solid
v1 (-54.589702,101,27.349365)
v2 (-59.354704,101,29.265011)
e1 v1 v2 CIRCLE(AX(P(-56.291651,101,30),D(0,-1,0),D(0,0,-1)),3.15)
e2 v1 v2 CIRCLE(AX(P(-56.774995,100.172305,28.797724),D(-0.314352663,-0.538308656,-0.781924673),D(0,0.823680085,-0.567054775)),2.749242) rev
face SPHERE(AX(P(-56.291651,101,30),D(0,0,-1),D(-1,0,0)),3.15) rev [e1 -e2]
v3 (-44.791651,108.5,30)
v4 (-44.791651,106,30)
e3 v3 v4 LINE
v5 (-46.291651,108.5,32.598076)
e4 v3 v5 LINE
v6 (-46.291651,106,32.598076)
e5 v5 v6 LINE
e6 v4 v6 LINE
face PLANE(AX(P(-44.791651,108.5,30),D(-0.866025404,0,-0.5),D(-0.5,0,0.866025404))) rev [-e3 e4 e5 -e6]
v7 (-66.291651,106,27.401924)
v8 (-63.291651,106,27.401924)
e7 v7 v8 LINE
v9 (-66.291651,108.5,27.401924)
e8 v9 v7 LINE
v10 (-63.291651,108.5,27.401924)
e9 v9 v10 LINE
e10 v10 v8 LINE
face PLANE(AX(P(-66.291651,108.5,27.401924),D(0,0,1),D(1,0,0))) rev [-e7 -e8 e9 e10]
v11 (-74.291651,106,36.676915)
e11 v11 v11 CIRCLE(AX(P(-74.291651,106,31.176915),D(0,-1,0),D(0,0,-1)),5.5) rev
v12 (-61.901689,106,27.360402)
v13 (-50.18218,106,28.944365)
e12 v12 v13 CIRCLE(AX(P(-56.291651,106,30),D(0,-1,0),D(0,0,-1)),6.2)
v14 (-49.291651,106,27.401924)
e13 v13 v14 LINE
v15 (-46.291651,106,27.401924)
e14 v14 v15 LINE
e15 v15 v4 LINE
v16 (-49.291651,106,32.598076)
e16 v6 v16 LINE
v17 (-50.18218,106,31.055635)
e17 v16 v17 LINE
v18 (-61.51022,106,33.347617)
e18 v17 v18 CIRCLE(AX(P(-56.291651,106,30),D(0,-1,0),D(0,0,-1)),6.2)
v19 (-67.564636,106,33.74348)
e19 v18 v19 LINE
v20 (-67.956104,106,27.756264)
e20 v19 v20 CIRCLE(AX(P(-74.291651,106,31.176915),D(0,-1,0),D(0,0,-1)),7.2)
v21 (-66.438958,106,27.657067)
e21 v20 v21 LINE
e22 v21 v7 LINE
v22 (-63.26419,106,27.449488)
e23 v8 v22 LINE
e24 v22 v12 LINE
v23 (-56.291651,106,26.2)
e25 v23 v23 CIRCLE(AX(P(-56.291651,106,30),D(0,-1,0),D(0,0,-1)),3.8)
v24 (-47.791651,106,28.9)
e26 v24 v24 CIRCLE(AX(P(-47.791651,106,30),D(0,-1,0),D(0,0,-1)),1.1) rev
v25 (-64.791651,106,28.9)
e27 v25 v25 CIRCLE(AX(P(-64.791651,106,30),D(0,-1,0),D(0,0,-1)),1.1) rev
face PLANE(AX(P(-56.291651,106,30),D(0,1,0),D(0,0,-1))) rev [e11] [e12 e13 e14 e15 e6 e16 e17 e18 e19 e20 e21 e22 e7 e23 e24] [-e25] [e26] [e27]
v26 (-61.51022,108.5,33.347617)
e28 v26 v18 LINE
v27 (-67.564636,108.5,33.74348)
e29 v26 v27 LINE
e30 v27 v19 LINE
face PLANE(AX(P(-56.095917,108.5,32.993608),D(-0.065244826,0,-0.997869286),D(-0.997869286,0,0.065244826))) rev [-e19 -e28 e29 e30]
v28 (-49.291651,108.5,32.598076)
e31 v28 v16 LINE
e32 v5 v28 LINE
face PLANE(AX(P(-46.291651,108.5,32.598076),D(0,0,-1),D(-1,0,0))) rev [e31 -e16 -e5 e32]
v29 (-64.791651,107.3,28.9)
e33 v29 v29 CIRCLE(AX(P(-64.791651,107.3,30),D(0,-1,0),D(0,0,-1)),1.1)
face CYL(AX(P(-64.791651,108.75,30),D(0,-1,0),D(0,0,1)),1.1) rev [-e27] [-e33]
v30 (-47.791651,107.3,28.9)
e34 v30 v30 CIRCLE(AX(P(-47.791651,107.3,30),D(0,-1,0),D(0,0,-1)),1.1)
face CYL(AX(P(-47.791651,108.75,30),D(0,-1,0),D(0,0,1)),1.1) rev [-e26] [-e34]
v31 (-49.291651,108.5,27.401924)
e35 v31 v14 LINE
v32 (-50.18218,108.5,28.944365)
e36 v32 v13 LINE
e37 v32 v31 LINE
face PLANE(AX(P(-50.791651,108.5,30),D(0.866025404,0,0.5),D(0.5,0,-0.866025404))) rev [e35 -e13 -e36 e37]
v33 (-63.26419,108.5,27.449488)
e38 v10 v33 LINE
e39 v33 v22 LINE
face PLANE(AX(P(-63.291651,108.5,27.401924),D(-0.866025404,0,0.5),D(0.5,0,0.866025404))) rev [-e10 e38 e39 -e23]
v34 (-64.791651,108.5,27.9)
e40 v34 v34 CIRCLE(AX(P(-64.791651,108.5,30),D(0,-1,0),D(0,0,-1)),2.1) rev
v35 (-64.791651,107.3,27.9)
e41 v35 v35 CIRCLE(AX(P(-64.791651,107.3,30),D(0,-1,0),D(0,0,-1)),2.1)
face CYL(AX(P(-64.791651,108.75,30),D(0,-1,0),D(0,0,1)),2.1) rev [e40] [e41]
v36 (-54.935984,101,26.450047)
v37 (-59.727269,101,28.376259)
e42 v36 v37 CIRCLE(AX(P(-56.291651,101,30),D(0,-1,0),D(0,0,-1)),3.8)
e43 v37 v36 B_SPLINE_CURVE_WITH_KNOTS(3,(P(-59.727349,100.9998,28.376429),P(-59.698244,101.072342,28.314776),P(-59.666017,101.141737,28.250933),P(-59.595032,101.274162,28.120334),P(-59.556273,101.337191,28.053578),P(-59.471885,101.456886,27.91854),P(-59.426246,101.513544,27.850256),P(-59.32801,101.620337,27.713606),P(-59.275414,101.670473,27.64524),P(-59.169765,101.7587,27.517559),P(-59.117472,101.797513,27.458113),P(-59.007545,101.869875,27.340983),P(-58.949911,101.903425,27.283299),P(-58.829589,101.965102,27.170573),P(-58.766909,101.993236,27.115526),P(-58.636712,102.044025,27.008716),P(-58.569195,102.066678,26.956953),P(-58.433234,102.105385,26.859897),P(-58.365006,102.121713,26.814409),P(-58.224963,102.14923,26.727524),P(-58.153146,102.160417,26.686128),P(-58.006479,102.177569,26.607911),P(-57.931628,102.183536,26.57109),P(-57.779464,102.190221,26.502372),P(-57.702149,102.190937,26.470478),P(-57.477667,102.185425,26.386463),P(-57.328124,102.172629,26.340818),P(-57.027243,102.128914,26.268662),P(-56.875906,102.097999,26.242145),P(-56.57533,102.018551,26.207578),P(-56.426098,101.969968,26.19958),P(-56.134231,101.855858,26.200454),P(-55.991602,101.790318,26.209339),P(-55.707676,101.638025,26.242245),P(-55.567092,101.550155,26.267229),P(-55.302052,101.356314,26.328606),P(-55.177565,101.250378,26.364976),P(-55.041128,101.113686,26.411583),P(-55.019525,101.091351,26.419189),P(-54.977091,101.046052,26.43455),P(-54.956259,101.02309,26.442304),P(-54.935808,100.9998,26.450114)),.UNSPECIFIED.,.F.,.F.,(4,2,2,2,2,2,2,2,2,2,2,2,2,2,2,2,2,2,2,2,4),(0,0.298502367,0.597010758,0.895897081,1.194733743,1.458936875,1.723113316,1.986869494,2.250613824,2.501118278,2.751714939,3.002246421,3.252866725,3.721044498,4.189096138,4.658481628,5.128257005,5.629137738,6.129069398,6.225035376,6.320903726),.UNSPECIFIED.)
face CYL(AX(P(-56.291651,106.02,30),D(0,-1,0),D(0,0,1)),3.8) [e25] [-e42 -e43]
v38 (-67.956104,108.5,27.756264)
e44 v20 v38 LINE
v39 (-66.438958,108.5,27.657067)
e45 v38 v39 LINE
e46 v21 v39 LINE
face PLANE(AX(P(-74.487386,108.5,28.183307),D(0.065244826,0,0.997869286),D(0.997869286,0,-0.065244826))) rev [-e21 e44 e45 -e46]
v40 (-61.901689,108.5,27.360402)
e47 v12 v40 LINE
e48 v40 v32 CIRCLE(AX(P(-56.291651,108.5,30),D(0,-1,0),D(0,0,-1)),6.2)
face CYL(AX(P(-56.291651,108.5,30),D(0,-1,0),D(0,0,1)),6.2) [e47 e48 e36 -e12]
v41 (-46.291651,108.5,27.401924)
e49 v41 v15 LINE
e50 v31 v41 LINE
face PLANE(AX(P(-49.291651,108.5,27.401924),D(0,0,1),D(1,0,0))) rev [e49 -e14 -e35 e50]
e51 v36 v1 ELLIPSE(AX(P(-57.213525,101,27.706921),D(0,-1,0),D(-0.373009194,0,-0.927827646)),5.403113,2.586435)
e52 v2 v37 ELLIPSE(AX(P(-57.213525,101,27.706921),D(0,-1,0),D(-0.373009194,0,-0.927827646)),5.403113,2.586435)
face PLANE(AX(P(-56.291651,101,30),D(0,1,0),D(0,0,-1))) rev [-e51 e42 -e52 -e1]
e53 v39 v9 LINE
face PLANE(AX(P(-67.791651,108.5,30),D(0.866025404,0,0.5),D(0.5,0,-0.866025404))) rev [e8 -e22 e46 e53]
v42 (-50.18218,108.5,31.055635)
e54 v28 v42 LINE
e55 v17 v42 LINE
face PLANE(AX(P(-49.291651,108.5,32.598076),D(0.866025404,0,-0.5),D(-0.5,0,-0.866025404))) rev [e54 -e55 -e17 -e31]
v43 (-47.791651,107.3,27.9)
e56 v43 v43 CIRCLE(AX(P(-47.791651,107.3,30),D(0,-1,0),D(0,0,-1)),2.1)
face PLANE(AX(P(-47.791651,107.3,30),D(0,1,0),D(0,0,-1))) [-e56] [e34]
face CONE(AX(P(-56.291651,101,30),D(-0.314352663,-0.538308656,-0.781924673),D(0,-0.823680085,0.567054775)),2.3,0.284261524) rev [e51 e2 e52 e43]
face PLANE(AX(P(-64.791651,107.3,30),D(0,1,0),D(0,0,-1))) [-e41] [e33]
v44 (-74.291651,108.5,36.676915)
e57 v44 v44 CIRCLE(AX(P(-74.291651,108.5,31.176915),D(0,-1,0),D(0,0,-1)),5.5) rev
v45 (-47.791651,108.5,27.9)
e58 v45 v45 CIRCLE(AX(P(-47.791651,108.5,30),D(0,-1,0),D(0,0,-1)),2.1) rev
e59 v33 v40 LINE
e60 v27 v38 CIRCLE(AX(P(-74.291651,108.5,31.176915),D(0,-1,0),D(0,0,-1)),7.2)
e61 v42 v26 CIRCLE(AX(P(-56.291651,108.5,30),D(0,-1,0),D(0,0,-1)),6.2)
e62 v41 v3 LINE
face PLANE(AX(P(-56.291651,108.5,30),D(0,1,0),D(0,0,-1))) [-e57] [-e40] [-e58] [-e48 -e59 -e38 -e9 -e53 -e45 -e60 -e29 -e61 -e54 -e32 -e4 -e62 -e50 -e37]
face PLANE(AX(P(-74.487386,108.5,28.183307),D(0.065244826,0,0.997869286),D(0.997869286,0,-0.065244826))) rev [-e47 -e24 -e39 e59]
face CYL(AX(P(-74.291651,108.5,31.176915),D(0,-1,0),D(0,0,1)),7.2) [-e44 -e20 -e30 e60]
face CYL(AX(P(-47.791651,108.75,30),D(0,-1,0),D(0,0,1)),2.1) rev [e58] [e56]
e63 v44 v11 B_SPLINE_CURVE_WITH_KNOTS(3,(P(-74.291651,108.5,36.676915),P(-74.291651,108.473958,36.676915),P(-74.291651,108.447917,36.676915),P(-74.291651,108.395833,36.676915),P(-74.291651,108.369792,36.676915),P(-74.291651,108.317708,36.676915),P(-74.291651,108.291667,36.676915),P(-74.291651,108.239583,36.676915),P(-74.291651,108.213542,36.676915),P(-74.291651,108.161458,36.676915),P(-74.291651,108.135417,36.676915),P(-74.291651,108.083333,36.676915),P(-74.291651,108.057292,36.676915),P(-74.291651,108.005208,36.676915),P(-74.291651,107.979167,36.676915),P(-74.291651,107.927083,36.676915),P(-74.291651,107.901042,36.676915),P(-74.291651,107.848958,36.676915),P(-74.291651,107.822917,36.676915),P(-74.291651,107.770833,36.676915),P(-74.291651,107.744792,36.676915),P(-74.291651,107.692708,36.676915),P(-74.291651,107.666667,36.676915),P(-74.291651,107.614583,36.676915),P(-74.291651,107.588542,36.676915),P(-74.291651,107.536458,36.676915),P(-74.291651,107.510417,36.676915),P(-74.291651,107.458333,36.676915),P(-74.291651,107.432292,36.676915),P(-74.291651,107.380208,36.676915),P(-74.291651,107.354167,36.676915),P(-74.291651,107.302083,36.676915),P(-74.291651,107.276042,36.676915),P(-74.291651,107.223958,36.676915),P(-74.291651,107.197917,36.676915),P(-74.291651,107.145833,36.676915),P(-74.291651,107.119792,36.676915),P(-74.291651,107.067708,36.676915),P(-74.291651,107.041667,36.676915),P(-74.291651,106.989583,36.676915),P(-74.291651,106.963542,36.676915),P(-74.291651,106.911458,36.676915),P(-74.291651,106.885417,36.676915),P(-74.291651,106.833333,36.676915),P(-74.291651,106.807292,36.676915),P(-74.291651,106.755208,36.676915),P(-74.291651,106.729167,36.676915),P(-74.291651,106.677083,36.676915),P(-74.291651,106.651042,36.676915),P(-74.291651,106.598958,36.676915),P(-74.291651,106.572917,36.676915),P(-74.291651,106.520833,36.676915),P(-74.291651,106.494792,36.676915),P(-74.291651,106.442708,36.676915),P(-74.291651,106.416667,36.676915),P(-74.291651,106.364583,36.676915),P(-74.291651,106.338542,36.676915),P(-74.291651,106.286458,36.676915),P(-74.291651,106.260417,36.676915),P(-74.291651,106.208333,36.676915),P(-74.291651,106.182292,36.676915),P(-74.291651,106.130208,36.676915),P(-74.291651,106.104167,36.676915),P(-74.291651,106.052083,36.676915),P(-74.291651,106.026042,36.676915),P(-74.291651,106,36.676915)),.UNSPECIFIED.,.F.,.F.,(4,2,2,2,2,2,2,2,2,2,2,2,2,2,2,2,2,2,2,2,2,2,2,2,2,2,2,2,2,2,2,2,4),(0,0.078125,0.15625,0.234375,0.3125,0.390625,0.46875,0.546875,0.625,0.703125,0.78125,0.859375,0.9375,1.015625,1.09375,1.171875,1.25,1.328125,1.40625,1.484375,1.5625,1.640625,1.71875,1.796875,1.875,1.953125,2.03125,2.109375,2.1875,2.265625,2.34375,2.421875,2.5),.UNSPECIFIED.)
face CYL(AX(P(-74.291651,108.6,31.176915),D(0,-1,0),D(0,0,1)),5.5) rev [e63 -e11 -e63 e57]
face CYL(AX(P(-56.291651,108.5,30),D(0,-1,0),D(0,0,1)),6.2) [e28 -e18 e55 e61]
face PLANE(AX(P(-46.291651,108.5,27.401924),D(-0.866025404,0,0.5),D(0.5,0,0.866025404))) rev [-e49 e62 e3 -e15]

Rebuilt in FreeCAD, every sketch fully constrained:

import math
import FreeCAD as App
import Part
import Sketcher
from FreeCAD import Vector
Q = App.Units.Quantity


def add_polygon(sketch, points):
    """Adds a closed chain of lines whose ends are joined by coincident constraints."""
    first, n = sketch.GeometryCount, len(points)
    for a, b in zip(points, points[1:] + points[:1]):
        sketch.addGeometry(Part.LineSegment(App.Vector(*a, 0), App.Vector(*b, 0)), False)
    for i in range(n):
        sketch.addConstraint(Sketcher.Constraint("Coincident", first + i, 2, first + (i + 1) % n, 1))

doc = App.newDocument("Part")
body = doc.addObject("PartDesign::Body", "Body")

sketch1 = body.newObject("Sketcher::SketchObject", "Sketch")
sketch1.AttachmentSupport = (doc.getObject("XZ_Plane"), [""])
sketch1.MapMode = "FlatFace"
sketch1.AttachmentOffset = App.Placement(Vector(0, 0, 101), App.Rotation())
sketch1.addGeometry(Part.Circle(Vector(-56.3, 30, 0), Vector(0, 0, 1), 3.8), False)
sketch1.addConstraint([
    Sketcher.Constraint("Diameter", 0, Q("7.6 mm")),
    Sketcher.Constraint("DistanceY", -1, 1, 0, 3, Q("30 mm")),
    Sketcher.Constraint("DistanceX", 0, 3, -1, 1, Q("56.291651 mm")),
])
pad1 = body.newObject("PartDesign::Pad", "Pad")
pad1.Profile = sketch1
pad1.Length = 5.02

sketch2 = body.newObject("Sketcher::SketchObject", "Sketch001")
sketch2.AttachmentSupport = (doc.getObject("XZ_Plane"), [""])
sketch2.MapMode = "FlatFace"
sketch2.AttachmentOffset = App.Placement(Vector(0, 0, 106), App.Rotation())
sketch2.addGeometry(Part.Circle(Vector(-56, 30, 0), Vector(0, 0, 1), 6), False)
sketch2.addConstraint([
    Sketcher.Constraint("Diameter", 0, Q("12.4 mm")),
    Sketcher.Constraint("DistanceY", -1, 1, 0, 3, Q("30 mm")),
    Sketcher.Constraint("DistanceX", 0, 3, -1, 1, Q("56.291651 mm")),
])
pad2 = body.newObject("PartDesign::Pad", "Pad001")
pad2.Profile = sketch2
pad2.Length = 2.5

sketch3 = body.newObject("Sketcher::SketchObject", "Sketch002")
sketch3.AttachmentSupport = (doc.getObject("XZ_Plane"), [""])
sketch3.MapMode = "FlatFace"
sketch3.AttachmentOffset = App.Placement(Vector(0, 0, 106), App.Rotation())
add_polygon(sketch3, [(-44.8, 30), (-46.3, 32.6), (-49.3, 32.6), (-50.8, 30), (-49.3, 27.4), (-46.3, 27.4)])
sketch3.addConstraint([
    Sketcher.Constraint("Horizontal", 1),
    Sketcher.Constraint("Horizontal", 4),
    Sketcher.Constraint("Parallel", 0, 3),
    Sketcher.Constraint("Parallel", 2, 5),
    Sketcher.Constraint("Horizontal", 2, 2, 5, 2),
    Sketcher.Constraint("Vertical", 1, 2, 3, 2),
    Sketcher.Constraint("Vertical", 0, 2, 4, 2),
    Sketcher.Constraint("DistanceX", 1, 2, 1, 1, Q("3 mm")),
    Sketcher.Constraint("Angle", 0, Q("120 deg")),
    Sketcher.Constraint("Distance", 0, Q("3 mm")),
    Sketcher.Constraint("DistanceY", -1, 1, 2, 2, Q("30 mm")),
    Sketcher.Constraint("DistanceX", 0, 2, -1, 1, Q("46.291651 mm")),
])
pad3 = body.newObject("PartDesign::Pad", "Pad002")
pad3.Profile = sketch3
pad3.Length = 2.5

sketch4 = body.newObject("Sketcher::SketchObject", "Sketch003")
sketch4.AttachmentSupport = (doc.getObject("XZ_Plane"), [""])
sketch4.MapMode = "FlatFace"
sketch4.AttachmentOffset = App.Placement(Vector(0, 0, 106), App.Rotation())
add_polygon(sketch4, [(-61.8, 30), (-63.3, 32.6), (-66.3, 32.6), (-67.8, 30), (-66.3, 27.4), (-63.3, 27.4)])
sketch4.addConstraint([
    Sketcher.Constraint("Horizontal", 1),
    Sketcher.Constraint("Horizontal", 4),
    Sketcher.Constraint("Parallel", 0, 3),
    Sketcher.Constraint("Parallel", 2, 5),
    Sketcher.Constraint("Horizontal", 2, 2, 5, 2),
    Sketcher.Constraint("Vertical", 1, 2, 3, 2),
    Sketcher.Constraint("Vertical", 0, 2, 4, 2),
    Sketcher.Constraint("DistanceX", 1, 2, 1, 1, Q("3 mm")),
    Sketcher.Constraint("Angle", 0, Q("120 deg")),
    Sketcher.Constraint("Distance", 0, Q("3 mm")),
    Sketcher.Constraint("DistanceY", -1, 1, 2, 2, Q("30 mm")),
    Sketcher.Constraint("DistanceX", 0, 2, -1, 1, Q("63.291651 mm")),
])
pad4 = body.newObject("PartDesign::Pad", "Pad003")
pad4.Profile = sketch4
pad4.Length = 2.5

sketch5 = body.newObject("Sketcher::SketchObject", "Sketch004")
sketch5.AttachmentSupport = (doc.getObject("XZ_Plane"), [""])
sketch5.MapMode = "FlatFace"
sketch5.AttachmentOffset = App.Placement(Vector(0, 0, 101), App.Rotation())
sketch5.addGeometry([
    Part.LineSegment(Vector(-56.3, 33.1, 0), Vector(-56.3, 26.9, 0)),
    Part.ArcOfCircle(Part.Circle(Vector(-56.3, 30, 0), Vector(0, 0, 1), 3.1), math.radians(-90), math.radians(90)),
], False)
sketch5.addGeometry(Part.LineSegment(Vector(-56.3, 26.9, 0), Vector(-56.3, 33.1, 0)), True)
sketch5.addConstraint([
    Sketcher.Constraint("Coincident", 0, 1, 1, 2),
    Sketcher.Constraint("Coincident", 1, 1, 0, 2),
    Sketcher.Constraint("Vertical", 0),
    Sketcher.Constraint("Vertical", 2),
    Sketcher.Constraint("Coincident", 2, 1, 1, 1),
    Sketcher.Constraint("Vertical", 1, 3, 0, 1),
    Sketcher.Constraint("Equal", 0, 2),
    Sketcher.Constraint("Radius", 1, Q("3.15 mm")),
    Sketcher.Constraint("DistanceY", -1, 1, 1, 3, Q("30 mm")),
    Sketcher.Constraint("DistanceX", 1, 3, -1, 1, Q("56.291651 mm")),
])
groove = body.newObject("PartDesign::Groove", "Groove")
groove.Profile = sketch5
groove.ReferenceAxis = (sketch5, ["Axis0"])
groove.Angle = 360

sketch6 = body.newObject("Sketcher::SketchObject", "Sketch005")
sketch6.AttachmentSupport = (doc.getObject("XZ_Plane"), [""])
sketch6.MapMode = "FlatFace"
sketch6.AttachmentOffset = App.Placement(Vector(0, 0, 106), App.Rotation())
add_polygon(sketch6, [(-56, 33), (-74, 34), (-74, 28), (-56, 27)])
sketch6.addConstraint([
    Sketcher.Constraint("Perpendicular", 0, 1),
    Sketcher.Constraint("Perpendicular", 1, 2),
    Sketcher.Constraint("Perpendicular", 2, 3),
    Sketcher.Constraint("Distance", 1, Q("6 mm")),
    Sketcher.Constraint("DistanceX", 1, 2, 2, 2, Q("18 mm")),
    Sketcher.Constraint("DistanceY", 1, 2, 3, 2, Q("4.810301 mm")),
    Sketcher.Constraint("DistanceX", 0, 2, -1, 1, Q("74.095917 mm")),
    Sketcher.Constraint("DistanceY", -1, 1, 0, 2, Q("34.170522 mm")),
])
pad5 = body.newObject("PartDesign::Pad", "Pad004")
pad5.Profile = sketch6
pad5.Length = 2.5

sketch7 = body.newObject("Sketcher::SketchObject", "Sketch006")
sketch7.AttachmentSupport = (doc.getObject("XZ_Plane"), [""])
sketch7.MapMode = "FlatFace"
sketch7.AttachmentOffset = App.Placement(Vector(0, 0, 106), App.Rotation())
sketch7.addGeometry(Part.Circle(Vector(-74, 31, 0), Vector(0, 0, 1), 7), False)
sketch7.addConstraint([
    Sketcher.Constraint("Diameter", 0, Q("14.4 mm")),
    Sketcher.Constraint("DistanceX", 0, 3, -1, 1, Q("74.291651 mm")),
    Sketcher.Constraint("DistanceY", -1, 1, 0, 3, Q("31.176915 mm")),
])
pad6 = body.newObject("PartDesign::Pad", "Pad005")
pad6.Profile = sketch7
pad6.Length = 2.5

sketch8 = body.newObject("Sketcher::SketchObject", "Sketch007")
sketch8.AttachmentSupport = (doc.getObject("XZ_Plane"), [""])
sketch8.MapMode = "FlatFace"
sketch8.AttachmentOffset = App.Placement(Vector(0, 0, 105.9), App.Rotation())
sketch8.addGeometry(Part.Circle(Vector(-74, 31, 0), Vector(0, 0, 1), 6), False)
sketch8.addConstraint([
    Sketcher.Constraint("Diameter", 0, Q("11 mm")),
    Sketcher.Constraint("DistanceX", 0, 3, -1, 1, Q("74.291651 mm")),
    Sketcher.Constraint("DistanceY", -1, 1, 0, 3, Q("31.176915 mm")),
])
pocket1 = body.newObject("PartDesign::Pocket", "Pocket")
pocket1.Profile = sketch8
pocket1.Length = 2.7
pocket1.Reversed = True

sketch9 = body.newObject("Sketcher::SketchObject", "Sketch008")
sketch9.AttachmentSupport = (doc.getObject("XZ_Plane"), [""])
sketch9.MapMode = "FlatFace"
sketch9.AttachmentOffset = App.Placement(Vector(0, 0, 105), App.Rotation())
sketch9.addGeometry(Part.Circle(Vector(-47.8, 30, 0), Vector(0, 0, 1), 1.1), False)
sketch9.addConstraint([
    Sketcher.Constraint("Diameter", 0, Q("2.2 mm")),
    Sketcher.Constraint("DistanceY", -1, 1, 0, 3, Q("30 mm")),
    Sketcher.Constraint("DistanceX", 0, 3, -1, 1, Q("47.791651 mm")),
])
pocket2 = body.newObject("PartDesign::Pocket", "Pocket001")
pocket2.Profile = sketch9
pocket2.Length = 3.75
pocket2.Reversed = True

sketch10 = body.newObject("Sketcher::SketchObject", "Sketch009")
sketch10.AttachmentSupport = (doc.getObject("XZ_Plane"), [""])
sketch10.MapMode = "FlatFace"
sketch10.AttachmentOffset = App.Placement(Vector(0, 0, 107.3), App.Rotation())
sketch10.addGeometry(Part.Circle(Vector(-47.8, 30, 0), Vector(0, 0, 1), 2.1), False)
sketch10.addConstraint([
    Sketcher.Constraint("Diameter", 0, Q("4.2 mm")),
    Sketcher.Constraint("DistanceY", -1, 1, 0, 3, Q("30 mm")),
    Sketcher.Constraint("DistanceX", 0, 3, -1, 1, Q("47.791651 mm")),
])
pocket3 = body.newObject("PartDesign::Pocket", "Pocket002")
pocket3.Profile = sketch10
pocket3.Length = 1.45
pocket3.Reversed = True

sketch11 = body.newObject("Sketcher::SketchObject", "Sketch010")
sketch11.AttachmentSupport = (doc.getObject("XZ_Plane"), [""])
sketch11.MapMode = "FlatFace"
sketch11.AttachmentOffset = App.Placement(Vector(0, 0, 105), App.Rotation())
sketch11.addGeometry(Part.Circle(Vector(-64.8, 30, 0), Vector(0, 0, 1), 1.1), False)
sketch11.addConstraint([
    Sketcher.Constraint("Diameter", 0, Q("2.2 mm")),
    Sketcher.Constraint("DistanceY", -1, 1, 0, 3, Q("30 mm")),
    Sketcher.Constraint("DistanceX", 0, 3, -1, 1, Q("64.791651 mm")),
])
pocket4 = body.newObject("PartDesign::Pocket", "Pocket003")
pocket4.Profile = sketch11
pocket4.Length = 3.75
pocket4.Reversed = True

sketch12 = body.newObject("Sketcher::SketchObject", "Sketch011")
sketch12.AttachmentSupport = (doc.getObject("XZ_Plane"), [""])
sketch12.MapMode = "FlatFace"
sketch12.AttachmentOffset = App.Placement(Vector(0, 0, 107.3), App.Rotation())
sketch12.addGeometry(Part.Circle(Vector(-64.8, 30, 0), Vector(0, 0, 1), 2.1), False)
sketch12.addConstraint([
    Sketcher.Constraint("Diameter", 0, Q("4.2 mm")),
    Sketcher.Constraint("DistanceY", -1, 1, 0, 3, Q("30 mm")),
    Sketcher.Constraint("DistanceX", 0, 3, -1, 1, Q("64.791651 mm")),
])
pocket5 = body.newObject("PartDesign::Pocket", "Pocket004")
pocket5.Profile = sketch12
pocket5.Length = 1.45
pocket5.Reversed = True

sketch13 = body.newObject("Sketcher::SketchObject", "Sketch012")
sketch13.Placement = App.Placement(Vector(-75.194143, -14.119516, 20.50942), App.Rotation(Vector(-0.254478546, -0.047784493, -0.965897154), Vector(-0.184548819, 0.982823348, 0), Vector(0.949306275, 0.178255179, -0.258926028), "ZXY"))
add_polygon(sketch13, [(-9.8, -88.9), (-8.5, -90.7), (14.1, -82.7), (8.8, -75.4)])
sketch13.addGeometry(Part.LineSegment(Vector(-9.8, -88.9, 0), Vector(8.8, -75.4, 0)), True)
sketch13.addConstraint([
    Sketcher.Constraint("Coincident", 4, 1, 3, 2),
    Sketcher.Constraint("Coincident", 4, 2, 2, 2),
    Sketcher.Constraint("Parallel", 0, 2),
    Sketcher.Constraint("Perpendicular", 2, 3),
    Sketcher.Constraint("Distance", 3, Q("23 mm")),
    Sketcher.Constraint("Distance", 0, Q("2.3 mm")),
    Sketcher.Constraint("Distance", 2, Q("9.02 mm")),
    Sketcher.Constraint("DistanceY", 3, 2, -1, 1, Q("88.8766 mm")),
    Sketcher.Constraint("DistanceX", 0, 2, -1, 1, Q("8.475389 mm")),
    Sketcher.Constraint("DistanceY", 2, 2, -1, 1, Q("75.373859 mm")),
])
groove2 = body.newObject("PartDesign::Groove", "Groove001")
groove2.Profile = sketch13
groove2.ReferenceAxis = (sketch13, ["Axis0"])
groove2.Angle = 360
body2 = doc.addObject("PartDesign::Body", "Body001")
doc.recompute()

mirroring = doc.addObject("Part::Mirroring", "Mirroring")
mirroring.Source = body
mirroring.Base = Vector(0, 0, 0)
mirroring.Normal = Vector(0, -1, 0)
body2.BaseFeature = mirroring
doc.recompute()
body.Visibility = False
mirroring.Visibility = False

doc.recompute()
